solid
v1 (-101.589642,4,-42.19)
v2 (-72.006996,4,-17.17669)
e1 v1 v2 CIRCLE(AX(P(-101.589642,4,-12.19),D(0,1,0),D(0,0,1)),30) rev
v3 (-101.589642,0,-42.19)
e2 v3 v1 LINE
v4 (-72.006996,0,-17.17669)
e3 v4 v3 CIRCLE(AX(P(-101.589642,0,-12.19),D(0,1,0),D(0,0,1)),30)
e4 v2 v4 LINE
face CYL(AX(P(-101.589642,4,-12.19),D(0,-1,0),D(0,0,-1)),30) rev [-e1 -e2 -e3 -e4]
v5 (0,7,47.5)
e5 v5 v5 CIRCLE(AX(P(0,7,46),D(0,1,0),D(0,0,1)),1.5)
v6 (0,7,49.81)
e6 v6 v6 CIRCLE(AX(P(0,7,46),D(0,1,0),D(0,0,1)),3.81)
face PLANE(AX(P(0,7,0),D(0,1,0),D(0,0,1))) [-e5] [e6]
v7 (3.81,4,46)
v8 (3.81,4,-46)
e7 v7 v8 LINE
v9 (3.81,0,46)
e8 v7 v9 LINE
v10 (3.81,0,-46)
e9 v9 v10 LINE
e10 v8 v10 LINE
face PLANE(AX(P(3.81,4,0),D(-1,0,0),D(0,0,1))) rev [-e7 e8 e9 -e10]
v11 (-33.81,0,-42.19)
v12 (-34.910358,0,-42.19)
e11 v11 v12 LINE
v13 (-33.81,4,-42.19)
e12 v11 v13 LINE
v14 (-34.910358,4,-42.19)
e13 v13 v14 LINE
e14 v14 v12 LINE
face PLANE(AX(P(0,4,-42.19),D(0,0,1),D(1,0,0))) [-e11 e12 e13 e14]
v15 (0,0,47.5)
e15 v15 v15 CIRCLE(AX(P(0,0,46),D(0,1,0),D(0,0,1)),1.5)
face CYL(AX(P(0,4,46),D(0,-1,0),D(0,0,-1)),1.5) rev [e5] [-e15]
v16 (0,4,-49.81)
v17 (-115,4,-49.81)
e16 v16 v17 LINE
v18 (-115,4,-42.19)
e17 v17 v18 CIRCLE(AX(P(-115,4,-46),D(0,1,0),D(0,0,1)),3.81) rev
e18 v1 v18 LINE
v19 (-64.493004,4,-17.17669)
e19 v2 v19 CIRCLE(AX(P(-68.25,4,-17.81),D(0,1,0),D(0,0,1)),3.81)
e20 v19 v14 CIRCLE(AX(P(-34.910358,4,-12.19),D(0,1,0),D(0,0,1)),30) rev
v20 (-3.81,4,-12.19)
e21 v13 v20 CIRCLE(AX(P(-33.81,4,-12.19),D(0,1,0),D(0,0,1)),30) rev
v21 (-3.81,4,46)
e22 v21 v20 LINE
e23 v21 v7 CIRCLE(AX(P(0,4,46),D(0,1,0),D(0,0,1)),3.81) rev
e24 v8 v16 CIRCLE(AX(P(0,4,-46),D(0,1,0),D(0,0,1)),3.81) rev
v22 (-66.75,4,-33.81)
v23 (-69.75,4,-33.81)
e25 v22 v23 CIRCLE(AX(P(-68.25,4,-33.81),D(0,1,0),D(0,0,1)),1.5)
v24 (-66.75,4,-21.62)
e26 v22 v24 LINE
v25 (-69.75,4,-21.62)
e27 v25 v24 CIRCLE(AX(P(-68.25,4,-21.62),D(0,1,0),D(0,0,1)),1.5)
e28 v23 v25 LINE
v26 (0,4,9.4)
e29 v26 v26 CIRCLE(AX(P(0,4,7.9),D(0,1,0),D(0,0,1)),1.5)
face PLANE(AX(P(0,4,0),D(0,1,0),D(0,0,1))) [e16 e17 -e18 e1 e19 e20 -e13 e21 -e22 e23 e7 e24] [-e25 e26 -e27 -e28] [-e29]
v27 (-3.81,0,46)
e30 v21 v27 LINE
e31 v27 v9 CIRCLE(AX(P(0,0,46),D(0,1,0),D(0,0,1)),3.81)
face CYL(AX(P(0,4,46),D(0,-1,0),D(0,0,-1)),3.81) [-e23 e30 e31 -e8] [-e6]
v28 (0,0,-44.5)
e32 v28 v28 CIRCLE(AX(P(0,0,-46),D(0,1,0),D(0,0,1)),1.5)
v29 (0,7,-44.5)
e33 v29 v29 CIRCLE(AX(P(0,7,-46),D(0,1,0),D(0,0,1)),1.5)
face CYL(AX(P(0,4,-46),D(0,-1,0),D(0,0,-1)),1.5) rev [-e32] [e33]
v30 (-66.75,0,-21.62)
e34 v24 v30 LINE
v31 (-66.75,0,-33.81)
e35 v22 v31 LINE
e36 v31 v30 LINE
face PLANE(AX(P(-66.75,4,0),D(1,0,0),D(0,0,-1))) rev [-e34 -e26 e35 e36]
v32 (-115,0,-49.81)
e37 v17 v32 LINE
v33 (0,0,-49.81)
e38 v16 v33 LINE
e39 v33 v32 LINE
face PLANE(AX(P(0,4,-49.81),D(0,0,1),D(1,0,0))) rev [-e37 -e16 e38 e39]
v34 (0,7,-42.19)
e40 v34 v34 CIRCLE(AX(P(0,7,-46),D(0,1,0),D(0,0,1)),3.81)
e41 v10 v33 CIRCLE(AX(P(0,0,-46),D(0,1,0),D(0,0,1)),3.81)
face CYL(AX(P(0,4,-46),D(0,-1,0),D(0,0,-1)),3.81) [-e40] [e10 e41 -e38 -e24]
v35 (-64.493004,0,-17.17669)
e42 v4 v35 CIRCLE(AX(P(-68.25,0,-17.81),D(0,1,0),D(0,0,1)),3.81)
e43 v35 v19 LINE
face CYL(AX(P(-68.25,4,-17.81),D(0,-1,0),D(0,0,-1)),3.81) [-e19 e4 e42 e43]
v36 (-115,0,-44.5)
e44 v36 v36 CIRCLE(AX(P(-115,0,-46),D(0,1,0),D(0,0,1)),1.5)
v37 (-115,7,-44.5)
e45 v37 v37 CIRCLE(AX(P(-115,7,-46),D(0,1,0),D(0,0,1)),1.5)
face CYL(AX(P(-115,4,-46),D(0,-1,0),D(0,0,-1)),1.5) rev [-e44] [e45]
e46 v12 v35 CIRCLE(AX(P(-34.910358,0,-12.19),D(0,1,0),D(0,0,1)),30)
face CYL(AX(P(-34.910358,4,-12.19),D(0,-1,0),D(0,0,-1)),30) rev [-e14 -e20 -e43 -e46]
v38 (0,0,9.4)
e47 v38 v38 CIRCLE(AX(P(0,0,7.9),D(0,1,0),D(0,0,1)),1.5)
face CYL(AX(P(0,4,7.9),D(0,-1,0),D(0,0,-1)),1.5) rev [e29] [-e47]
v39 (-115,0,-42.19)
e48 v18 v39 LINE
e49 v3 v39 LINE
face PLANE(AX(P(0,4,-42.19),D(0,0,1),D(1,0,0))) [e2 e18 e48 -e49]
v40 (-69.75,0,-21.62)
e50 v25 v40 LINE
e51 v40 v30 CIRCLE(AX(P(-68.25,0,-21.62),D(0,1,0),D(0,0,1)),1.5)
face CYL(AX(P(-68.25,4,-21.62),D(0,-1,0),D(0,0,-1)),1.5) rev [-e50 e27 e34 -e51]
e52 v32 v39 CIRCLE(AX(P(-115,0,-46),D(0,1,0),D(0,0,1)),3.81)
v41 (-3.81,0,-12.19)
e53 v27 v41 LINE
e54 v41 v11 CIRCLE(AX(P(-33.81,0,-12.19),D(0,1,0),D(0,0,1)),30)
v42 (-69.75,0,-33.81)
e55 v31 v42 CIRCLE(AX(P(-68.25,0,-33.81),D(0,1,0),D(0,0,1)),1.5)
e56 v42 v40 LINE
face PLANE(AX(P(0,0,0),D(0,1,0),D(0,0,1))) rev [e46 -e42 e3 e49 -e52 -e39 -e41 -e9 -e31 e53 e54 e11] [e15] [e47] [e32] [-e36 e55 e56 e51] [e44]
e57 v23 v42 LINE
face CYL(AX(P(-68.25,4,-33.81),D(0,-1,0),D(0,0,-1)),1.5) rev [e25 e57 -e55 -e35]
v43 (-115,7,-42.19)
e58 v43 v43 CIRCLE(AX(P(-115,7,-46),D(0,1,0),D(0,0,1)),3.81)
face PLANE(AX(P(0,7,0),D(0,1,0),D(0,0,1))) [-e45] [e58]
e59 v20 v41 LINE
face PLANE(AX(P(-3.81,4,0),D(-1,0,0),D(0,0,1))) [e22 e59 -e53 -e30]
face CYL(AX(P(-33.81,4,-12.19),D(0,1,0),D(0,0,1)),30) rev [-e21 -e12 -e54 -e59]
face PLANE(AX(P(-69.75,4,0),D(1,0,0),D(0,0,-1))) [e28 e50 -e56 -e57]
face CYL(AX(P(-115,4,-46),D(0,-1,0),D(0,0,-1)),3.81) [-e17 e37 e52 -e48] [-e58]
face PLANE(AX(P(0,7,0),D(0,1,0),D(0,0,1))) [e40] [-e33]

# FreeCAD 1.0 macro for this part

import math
import FreeCAD as App
import Part
import Sketcher


def edges_at(feature, points):
    """Names of the edges that pass closest to the given points."""
    edges = feature.Shape.Edges
    near = lambda p: min(range(len(edges)), key=lambda i: edges[i].distToShape(Part.Vertex(*p))[0])
    return sorted({f"Edge{near(p) + 1}" for p in points})

doc = App.newDocument("Part")
body = doc.addObject("PartDesign::Body", "Body")

# Sketch on XZ plane
sketch1 = doc.addObject("Sketcher::SketchObject", "Sketch")
body.addObject(sketch1)
sketch1.AttachmentSupport = (doc.XZ_Plane, [""])
sketch1.MapMode = "FlatFace"
sketch1.addGeometry(Part.ArcOfCircle(Part.Circle(App.Vector(0, 46, 0), App.Vector(0, 0, 1), 3.81), math.radians(0), math.radians(180)), False)
sketch1.addGeometry(Part.LineSegment(App.Vector(3.81, 46, 0), App.Vector(3.81, -46, 0)), False)
sketch1.addGeometry(Part.ArcOfCircle(Part.Circle(App.Vector(0, -46, 0), App.Vector(0, 0, 1), 3.81), math.radians(-90), math.radians(0)), False)
sketch1.addGeometry(Part.LineSegment(App.Vector(0, -49.81, 0), App.Vector(-115, -49.81, 0)), False)
sketch1.addGeometry(Part.ArcOfCircle(Part.Circle(App.Vector(-115, -46, 0), App.Vector(0, 0, 1), 3.81), math.radians(90), math.radians(270)), False)
sketch1.addGeometry(Part.LineSegment(App.Vector(-115, -42.19, 0), App.Vector(-72.06, -42.19, 0)), False)
sketch1.addGeometry(Part.LineSegment(App.Vector(-72.06, -42.19, 0), App.Vector(-72.06, -17.81, 0)), False)
sketch1.addGeometry(Part.ArcOfCircle(Part.Circle(App.Vector(-68.25, -17.81, 0), App.Vector(0, 0, 1), 3.81), math.radians(0), math.radians(180)), False)
sketch1.addGeometry(Part.LineSegment(App.Vector(-64.44, -17.81, 0), App.Vector(-64.44, -42.19, 0)), False)
sketch1.addGeometry(Part.LineSegment(App.Vector(-64.44, -42.19, 0), App.Vector(-3.81, -42.19, 0)), False)
sketch1.addGeometry(Part.LineSegment(App.Vector(-3.81, -42.19, 0), App.Vector(-3.81, 46, 0)), False)
sketch1.addGeometry(Part.Circle(App.Vector(0, 46, 0), App.Vector(0, 0, 1), 1.5), False)
sketch1.addGeometry(Part.Circle(App.Vector(0, 7.9, 0), App.Vector(0, 0, 1), 1.5), False)
sketch1.addGeometry(Part.Circle(App.Vector(-115, -46, 0), App.Vector(0, 0, 1), 1.5), False)
sketch1.addGeometry(Part.ArcOfCircle(Part.Circle(App.Vector(-68.25, -21.62, 0), App.Vector(0, 0, 1), 1.5), math.radians(0), math.radians(180)), False)
sketch1.addGeometry(Part.LineSegment(App.Vector(-69.75, -21.62, 0), App.Vector(-69.75, -33.81, 0)), False)
sketch1.addGeometry(Part.ArcOfCircle(Part.Circle(App.Vector(-68.25, -33.81, 0), App.Vector(0, 0, 1), 1.5), math.radians(180), math.radians(360)), False)
sketch1.addGeometry(Part.LineSegment(App.Vector(-66.75, -33.81, 0), App.Vector(-66.75, -21.62, 0)), False)
sketch1.addGeometry(Part.Circle(App.Vector(0, -46, 0), App.Vector(0, 0, 1), 1.5), False)
sketch1.addConstraint(Sketcher.Constraint("Tangent", 0, 1, 1, 1))
sketch1.addConstraint(Sketcher.Constraint("Tangent", 1, 2, 2, 2))
sketch1.addConstraint(Sketcher.Constraint("Tangent", 2, 1, 3, 1))
sketch1.addConstraint(Sketcher.Constraint("Tangent", 3, 2, 4, 2))
sketch1.addConstraint(Sketcher.Constraint("Tangent", 4, 1, 5, 1))
sketch1.addConstraint(Sketcher.Constraint("Coincident", 5, 2, 6, 1))
sketch1.addConstraint(Sketcher.Constraint("Tangent", 6, 2, 7, 2))
sketch1.addConstraint(Sketcher.Constraint("Tangent", 7, 1, 8, 1))
sketch1.addConstraint(Sketcher.Constraint("Coincident", 8, 2, 9, 1))
sketch1.addConstraint(Sketcher.Constraint("Coincident", 9, 2, 10, 1))
sketch1.addConstraint(Sketcher.Constraint("Tangent", 10, 2, 0, 2))
sketch1.addConstraint(Sketcher.Constraint("Tangent", 14, 2, 15, 1))
sketch1.addConstraint(Sketcher.Constraint("Tangent", 15, 2, 16, 1))
sketch1.addConstraint(Sketcher.Constraint("Tangent", 16, 2, 17, 1))
sketch1.addConstraint(Sketcher.Constraint("Tangent", 17, 2, 14, 1))
sketch1.addConstraint(Sketcher.Constraint("Vertical", 1))
sketch1.addConstraint(Sketcher.Constraint("Horizontal", 3))
sketch1.addConstraint(Sketcher.Constraint("Horizontal", 5))
sketch1.addConstraint(Sketcher.Constraint("Vertical", 6))
sketch1.addConstraint(Sketcher.Constraint("Vertical", 8))
sketch1.addConstraint(Sketcher.Constraint("Horizontal", 9))
sketch1.addConstraint(Sketcher.Constraint("Vertical", 10))
sketch1.addConstraint(Sketcher.Constraint("Vertical", 15))
sketch1.addConstraint(Sketcher.Constraint("Vertical", 17))
sketch1.addConstraint(Sketcher.Constraint("Coincident", 11, 3, 0, 3))
sketch1.addConstraint(Sketcher.Constraint("Coincident", 13, 3, 4, 3))
sketch1.addConstraint(Sketcher.Constraint("Coincident", 18, 3, 2, 3))
sketch1.addConstraint(Sketcher.Constraint("Equal", 0, 2))
sketch1.addConstraint(Sketcher.Constraint("Equal", 2, 4))
sketch1.addConstraint(Sketcher.Constraint("Equal", 4, 7))
sketch1.addConstraint(Sketcher.Constraint("Equal", 11, 12))
sketch1.addConstraint(Sketcher.Constraint("Equal", 12, 13))
sketch1.addConstraint(Sketcher.Constraint("Equal", 13, 14))
sketch1.addConstraint(Sketcher.Constraint("Equal", 16, 18))
sketch1.addConstraint(Sketcher.Constraint("Symmetric", 0, 3, 2, 3, -1, 1))
sketch1.addConstraint(Sketcher.Constraint("PointOnObject", 12, 3, -2))
sketch1.addConstraint(Sketcher.Constraint("Horizontal", 5, 2, 8, 2))
sketch1.addConstraint(Sketcher.Constraint("Vertical", 7, 3, 14, 3))
sketch1.addConstraint(Sketcher.Constraint("Diameter", 11, 3.0))
sketch1.addConstraint(Sketcher.Constraint("DistanceX", 3, 2, 3, 1, 115.0))
sketch1.addConstraint(Sketcher.Constraint("DistanceY", 1, 2, 1, 1, 92.0))
sketch1.addConstraint(Sketcher.Constraint("Radius", 0, 3.81))
sketch1.addConstraint(Sketcher.Constraint("DistanceY", 16, 3, 7, 3, 16.0))
sketch1.addConstraint(Sketcher.Constraint("DistanceY", 2, 1, 16, 3, 16.0))
sketch1.addConstraint(Sketcher.Constraint("DistanceX", 5, 1, 5, 2, 42.94))
sketch1.addConstraint(Sketcher.Constraint("DistanceY", 15, 2, 15, 1, 12.19))
sketch1.addConstraint(Sketcher.Constraint("DistanceY", -1, 1, 12, 3, 7.9))
pad1 = doc.addObject("PartDesign::Pad", "Pad")
body.addObject(pad1)
pad1.Profile = sketch1
pad1.Length = 4
pad1.Reversed = True

# Sketch on XZ plane
sketch2 = doc.addObject("Sketcher::SketchObject", "Sketch001")
body.addObject(sketch2)
sketch2.AttachmentSupport = (doc.XZ_Plane, [""])
sketch2.MapMode = "FlatFace"
sketch2.addGeometry(Part.Circle(App.Vector(-115, -46, 0), App.Vector(0, 0, 1), 3.81), False)
sketch2.addGeometry(Part.Circle(App.Vector(-115, -46, 0), App.Vector(0, 0, 1), 1.5), False)
sketch2.addGeometry(Part.Circle(App.Vector(0, -46, 0), App.Vector(0, 0, 1), 3.81), False)
sketch2.addGeometry(Part.Circle(App.Vector(0, -46, 0), App.Vector(0, 0, 1), 1.5), False)
sketch2.addGeometry(Part.Circle(App.Vector(0, 46, 0), App.Vector(0, 0, 1), 3.81), False)
sketch2.addGeometry(Part.Circle(App.Vector(0, 46, 0), App.Vector(0, 0, 1), 1.5), False)
sketch2.addConstraint(Sketcher.Constraint("Coincident", 1, 3, 0, 3))
sketch2.addConstraint(Sketcher.Constraint("Coincident", 3, 3, 2, 3))
sketch2.addConstraint(Sketcher.Constraint("Coincident", 5, 3, 4, 3))
sketch2.addConstraint(Sketcher.Constraint("Equal", 0, 2))
sketch2.addConstraint(Sketcher.Constraint("Equal", 1, 3))
sketch2.addConstraint(Sketcher.Constraint("Equal", 2, 4))
sketch2.addConstraint(Sketcher.Constraint("Equal", 3, 5))
sketch2.addConstraint(Sketcher.Constraint("Symmetric", 2, 3, 4, 3, -1, 1))
sketch2.addConstraint(Sketcher.Constraint("PointOnObject", 2, 3, -2))
sketch2.addConstraint(Sketcher.Constraint("Horizontal", 1, 3, 2, 3))
sketch2.addConstraint(Sketcher.Constraint("Diameter", 1, 3.0))
sketch2.addConstraint(Sketcher.Constraint("Diameter", 0, 7.62))
sketch2.addConstraint(Sketcher.Constraint("DistanceX", 0, 3, -1, 1, 115.0))
sketch2.addConstraint(Sketcher.Constraint("DistanceY", 0, 3, -1, 1, 46.0))
pad2 = doc.addObject("PartDesign::Pad", "Pad001")
body.addObject(pad2)
pad2.Profile = sketch2
pad2.Length = 7
pad2.Reversed = True
doc.recompute()

fillet = doc.addObject("PartDesign::Fillet", "Fillet")
body.addObject(fillet)
fillet.Base = (pad2, edges_at(pad2, [(-64.44, 2, -42.19), (-72.06, 2, -42.19), (-3.81, 2, -42.19)]))
fillet.Radius = 30

doc.recompute()
